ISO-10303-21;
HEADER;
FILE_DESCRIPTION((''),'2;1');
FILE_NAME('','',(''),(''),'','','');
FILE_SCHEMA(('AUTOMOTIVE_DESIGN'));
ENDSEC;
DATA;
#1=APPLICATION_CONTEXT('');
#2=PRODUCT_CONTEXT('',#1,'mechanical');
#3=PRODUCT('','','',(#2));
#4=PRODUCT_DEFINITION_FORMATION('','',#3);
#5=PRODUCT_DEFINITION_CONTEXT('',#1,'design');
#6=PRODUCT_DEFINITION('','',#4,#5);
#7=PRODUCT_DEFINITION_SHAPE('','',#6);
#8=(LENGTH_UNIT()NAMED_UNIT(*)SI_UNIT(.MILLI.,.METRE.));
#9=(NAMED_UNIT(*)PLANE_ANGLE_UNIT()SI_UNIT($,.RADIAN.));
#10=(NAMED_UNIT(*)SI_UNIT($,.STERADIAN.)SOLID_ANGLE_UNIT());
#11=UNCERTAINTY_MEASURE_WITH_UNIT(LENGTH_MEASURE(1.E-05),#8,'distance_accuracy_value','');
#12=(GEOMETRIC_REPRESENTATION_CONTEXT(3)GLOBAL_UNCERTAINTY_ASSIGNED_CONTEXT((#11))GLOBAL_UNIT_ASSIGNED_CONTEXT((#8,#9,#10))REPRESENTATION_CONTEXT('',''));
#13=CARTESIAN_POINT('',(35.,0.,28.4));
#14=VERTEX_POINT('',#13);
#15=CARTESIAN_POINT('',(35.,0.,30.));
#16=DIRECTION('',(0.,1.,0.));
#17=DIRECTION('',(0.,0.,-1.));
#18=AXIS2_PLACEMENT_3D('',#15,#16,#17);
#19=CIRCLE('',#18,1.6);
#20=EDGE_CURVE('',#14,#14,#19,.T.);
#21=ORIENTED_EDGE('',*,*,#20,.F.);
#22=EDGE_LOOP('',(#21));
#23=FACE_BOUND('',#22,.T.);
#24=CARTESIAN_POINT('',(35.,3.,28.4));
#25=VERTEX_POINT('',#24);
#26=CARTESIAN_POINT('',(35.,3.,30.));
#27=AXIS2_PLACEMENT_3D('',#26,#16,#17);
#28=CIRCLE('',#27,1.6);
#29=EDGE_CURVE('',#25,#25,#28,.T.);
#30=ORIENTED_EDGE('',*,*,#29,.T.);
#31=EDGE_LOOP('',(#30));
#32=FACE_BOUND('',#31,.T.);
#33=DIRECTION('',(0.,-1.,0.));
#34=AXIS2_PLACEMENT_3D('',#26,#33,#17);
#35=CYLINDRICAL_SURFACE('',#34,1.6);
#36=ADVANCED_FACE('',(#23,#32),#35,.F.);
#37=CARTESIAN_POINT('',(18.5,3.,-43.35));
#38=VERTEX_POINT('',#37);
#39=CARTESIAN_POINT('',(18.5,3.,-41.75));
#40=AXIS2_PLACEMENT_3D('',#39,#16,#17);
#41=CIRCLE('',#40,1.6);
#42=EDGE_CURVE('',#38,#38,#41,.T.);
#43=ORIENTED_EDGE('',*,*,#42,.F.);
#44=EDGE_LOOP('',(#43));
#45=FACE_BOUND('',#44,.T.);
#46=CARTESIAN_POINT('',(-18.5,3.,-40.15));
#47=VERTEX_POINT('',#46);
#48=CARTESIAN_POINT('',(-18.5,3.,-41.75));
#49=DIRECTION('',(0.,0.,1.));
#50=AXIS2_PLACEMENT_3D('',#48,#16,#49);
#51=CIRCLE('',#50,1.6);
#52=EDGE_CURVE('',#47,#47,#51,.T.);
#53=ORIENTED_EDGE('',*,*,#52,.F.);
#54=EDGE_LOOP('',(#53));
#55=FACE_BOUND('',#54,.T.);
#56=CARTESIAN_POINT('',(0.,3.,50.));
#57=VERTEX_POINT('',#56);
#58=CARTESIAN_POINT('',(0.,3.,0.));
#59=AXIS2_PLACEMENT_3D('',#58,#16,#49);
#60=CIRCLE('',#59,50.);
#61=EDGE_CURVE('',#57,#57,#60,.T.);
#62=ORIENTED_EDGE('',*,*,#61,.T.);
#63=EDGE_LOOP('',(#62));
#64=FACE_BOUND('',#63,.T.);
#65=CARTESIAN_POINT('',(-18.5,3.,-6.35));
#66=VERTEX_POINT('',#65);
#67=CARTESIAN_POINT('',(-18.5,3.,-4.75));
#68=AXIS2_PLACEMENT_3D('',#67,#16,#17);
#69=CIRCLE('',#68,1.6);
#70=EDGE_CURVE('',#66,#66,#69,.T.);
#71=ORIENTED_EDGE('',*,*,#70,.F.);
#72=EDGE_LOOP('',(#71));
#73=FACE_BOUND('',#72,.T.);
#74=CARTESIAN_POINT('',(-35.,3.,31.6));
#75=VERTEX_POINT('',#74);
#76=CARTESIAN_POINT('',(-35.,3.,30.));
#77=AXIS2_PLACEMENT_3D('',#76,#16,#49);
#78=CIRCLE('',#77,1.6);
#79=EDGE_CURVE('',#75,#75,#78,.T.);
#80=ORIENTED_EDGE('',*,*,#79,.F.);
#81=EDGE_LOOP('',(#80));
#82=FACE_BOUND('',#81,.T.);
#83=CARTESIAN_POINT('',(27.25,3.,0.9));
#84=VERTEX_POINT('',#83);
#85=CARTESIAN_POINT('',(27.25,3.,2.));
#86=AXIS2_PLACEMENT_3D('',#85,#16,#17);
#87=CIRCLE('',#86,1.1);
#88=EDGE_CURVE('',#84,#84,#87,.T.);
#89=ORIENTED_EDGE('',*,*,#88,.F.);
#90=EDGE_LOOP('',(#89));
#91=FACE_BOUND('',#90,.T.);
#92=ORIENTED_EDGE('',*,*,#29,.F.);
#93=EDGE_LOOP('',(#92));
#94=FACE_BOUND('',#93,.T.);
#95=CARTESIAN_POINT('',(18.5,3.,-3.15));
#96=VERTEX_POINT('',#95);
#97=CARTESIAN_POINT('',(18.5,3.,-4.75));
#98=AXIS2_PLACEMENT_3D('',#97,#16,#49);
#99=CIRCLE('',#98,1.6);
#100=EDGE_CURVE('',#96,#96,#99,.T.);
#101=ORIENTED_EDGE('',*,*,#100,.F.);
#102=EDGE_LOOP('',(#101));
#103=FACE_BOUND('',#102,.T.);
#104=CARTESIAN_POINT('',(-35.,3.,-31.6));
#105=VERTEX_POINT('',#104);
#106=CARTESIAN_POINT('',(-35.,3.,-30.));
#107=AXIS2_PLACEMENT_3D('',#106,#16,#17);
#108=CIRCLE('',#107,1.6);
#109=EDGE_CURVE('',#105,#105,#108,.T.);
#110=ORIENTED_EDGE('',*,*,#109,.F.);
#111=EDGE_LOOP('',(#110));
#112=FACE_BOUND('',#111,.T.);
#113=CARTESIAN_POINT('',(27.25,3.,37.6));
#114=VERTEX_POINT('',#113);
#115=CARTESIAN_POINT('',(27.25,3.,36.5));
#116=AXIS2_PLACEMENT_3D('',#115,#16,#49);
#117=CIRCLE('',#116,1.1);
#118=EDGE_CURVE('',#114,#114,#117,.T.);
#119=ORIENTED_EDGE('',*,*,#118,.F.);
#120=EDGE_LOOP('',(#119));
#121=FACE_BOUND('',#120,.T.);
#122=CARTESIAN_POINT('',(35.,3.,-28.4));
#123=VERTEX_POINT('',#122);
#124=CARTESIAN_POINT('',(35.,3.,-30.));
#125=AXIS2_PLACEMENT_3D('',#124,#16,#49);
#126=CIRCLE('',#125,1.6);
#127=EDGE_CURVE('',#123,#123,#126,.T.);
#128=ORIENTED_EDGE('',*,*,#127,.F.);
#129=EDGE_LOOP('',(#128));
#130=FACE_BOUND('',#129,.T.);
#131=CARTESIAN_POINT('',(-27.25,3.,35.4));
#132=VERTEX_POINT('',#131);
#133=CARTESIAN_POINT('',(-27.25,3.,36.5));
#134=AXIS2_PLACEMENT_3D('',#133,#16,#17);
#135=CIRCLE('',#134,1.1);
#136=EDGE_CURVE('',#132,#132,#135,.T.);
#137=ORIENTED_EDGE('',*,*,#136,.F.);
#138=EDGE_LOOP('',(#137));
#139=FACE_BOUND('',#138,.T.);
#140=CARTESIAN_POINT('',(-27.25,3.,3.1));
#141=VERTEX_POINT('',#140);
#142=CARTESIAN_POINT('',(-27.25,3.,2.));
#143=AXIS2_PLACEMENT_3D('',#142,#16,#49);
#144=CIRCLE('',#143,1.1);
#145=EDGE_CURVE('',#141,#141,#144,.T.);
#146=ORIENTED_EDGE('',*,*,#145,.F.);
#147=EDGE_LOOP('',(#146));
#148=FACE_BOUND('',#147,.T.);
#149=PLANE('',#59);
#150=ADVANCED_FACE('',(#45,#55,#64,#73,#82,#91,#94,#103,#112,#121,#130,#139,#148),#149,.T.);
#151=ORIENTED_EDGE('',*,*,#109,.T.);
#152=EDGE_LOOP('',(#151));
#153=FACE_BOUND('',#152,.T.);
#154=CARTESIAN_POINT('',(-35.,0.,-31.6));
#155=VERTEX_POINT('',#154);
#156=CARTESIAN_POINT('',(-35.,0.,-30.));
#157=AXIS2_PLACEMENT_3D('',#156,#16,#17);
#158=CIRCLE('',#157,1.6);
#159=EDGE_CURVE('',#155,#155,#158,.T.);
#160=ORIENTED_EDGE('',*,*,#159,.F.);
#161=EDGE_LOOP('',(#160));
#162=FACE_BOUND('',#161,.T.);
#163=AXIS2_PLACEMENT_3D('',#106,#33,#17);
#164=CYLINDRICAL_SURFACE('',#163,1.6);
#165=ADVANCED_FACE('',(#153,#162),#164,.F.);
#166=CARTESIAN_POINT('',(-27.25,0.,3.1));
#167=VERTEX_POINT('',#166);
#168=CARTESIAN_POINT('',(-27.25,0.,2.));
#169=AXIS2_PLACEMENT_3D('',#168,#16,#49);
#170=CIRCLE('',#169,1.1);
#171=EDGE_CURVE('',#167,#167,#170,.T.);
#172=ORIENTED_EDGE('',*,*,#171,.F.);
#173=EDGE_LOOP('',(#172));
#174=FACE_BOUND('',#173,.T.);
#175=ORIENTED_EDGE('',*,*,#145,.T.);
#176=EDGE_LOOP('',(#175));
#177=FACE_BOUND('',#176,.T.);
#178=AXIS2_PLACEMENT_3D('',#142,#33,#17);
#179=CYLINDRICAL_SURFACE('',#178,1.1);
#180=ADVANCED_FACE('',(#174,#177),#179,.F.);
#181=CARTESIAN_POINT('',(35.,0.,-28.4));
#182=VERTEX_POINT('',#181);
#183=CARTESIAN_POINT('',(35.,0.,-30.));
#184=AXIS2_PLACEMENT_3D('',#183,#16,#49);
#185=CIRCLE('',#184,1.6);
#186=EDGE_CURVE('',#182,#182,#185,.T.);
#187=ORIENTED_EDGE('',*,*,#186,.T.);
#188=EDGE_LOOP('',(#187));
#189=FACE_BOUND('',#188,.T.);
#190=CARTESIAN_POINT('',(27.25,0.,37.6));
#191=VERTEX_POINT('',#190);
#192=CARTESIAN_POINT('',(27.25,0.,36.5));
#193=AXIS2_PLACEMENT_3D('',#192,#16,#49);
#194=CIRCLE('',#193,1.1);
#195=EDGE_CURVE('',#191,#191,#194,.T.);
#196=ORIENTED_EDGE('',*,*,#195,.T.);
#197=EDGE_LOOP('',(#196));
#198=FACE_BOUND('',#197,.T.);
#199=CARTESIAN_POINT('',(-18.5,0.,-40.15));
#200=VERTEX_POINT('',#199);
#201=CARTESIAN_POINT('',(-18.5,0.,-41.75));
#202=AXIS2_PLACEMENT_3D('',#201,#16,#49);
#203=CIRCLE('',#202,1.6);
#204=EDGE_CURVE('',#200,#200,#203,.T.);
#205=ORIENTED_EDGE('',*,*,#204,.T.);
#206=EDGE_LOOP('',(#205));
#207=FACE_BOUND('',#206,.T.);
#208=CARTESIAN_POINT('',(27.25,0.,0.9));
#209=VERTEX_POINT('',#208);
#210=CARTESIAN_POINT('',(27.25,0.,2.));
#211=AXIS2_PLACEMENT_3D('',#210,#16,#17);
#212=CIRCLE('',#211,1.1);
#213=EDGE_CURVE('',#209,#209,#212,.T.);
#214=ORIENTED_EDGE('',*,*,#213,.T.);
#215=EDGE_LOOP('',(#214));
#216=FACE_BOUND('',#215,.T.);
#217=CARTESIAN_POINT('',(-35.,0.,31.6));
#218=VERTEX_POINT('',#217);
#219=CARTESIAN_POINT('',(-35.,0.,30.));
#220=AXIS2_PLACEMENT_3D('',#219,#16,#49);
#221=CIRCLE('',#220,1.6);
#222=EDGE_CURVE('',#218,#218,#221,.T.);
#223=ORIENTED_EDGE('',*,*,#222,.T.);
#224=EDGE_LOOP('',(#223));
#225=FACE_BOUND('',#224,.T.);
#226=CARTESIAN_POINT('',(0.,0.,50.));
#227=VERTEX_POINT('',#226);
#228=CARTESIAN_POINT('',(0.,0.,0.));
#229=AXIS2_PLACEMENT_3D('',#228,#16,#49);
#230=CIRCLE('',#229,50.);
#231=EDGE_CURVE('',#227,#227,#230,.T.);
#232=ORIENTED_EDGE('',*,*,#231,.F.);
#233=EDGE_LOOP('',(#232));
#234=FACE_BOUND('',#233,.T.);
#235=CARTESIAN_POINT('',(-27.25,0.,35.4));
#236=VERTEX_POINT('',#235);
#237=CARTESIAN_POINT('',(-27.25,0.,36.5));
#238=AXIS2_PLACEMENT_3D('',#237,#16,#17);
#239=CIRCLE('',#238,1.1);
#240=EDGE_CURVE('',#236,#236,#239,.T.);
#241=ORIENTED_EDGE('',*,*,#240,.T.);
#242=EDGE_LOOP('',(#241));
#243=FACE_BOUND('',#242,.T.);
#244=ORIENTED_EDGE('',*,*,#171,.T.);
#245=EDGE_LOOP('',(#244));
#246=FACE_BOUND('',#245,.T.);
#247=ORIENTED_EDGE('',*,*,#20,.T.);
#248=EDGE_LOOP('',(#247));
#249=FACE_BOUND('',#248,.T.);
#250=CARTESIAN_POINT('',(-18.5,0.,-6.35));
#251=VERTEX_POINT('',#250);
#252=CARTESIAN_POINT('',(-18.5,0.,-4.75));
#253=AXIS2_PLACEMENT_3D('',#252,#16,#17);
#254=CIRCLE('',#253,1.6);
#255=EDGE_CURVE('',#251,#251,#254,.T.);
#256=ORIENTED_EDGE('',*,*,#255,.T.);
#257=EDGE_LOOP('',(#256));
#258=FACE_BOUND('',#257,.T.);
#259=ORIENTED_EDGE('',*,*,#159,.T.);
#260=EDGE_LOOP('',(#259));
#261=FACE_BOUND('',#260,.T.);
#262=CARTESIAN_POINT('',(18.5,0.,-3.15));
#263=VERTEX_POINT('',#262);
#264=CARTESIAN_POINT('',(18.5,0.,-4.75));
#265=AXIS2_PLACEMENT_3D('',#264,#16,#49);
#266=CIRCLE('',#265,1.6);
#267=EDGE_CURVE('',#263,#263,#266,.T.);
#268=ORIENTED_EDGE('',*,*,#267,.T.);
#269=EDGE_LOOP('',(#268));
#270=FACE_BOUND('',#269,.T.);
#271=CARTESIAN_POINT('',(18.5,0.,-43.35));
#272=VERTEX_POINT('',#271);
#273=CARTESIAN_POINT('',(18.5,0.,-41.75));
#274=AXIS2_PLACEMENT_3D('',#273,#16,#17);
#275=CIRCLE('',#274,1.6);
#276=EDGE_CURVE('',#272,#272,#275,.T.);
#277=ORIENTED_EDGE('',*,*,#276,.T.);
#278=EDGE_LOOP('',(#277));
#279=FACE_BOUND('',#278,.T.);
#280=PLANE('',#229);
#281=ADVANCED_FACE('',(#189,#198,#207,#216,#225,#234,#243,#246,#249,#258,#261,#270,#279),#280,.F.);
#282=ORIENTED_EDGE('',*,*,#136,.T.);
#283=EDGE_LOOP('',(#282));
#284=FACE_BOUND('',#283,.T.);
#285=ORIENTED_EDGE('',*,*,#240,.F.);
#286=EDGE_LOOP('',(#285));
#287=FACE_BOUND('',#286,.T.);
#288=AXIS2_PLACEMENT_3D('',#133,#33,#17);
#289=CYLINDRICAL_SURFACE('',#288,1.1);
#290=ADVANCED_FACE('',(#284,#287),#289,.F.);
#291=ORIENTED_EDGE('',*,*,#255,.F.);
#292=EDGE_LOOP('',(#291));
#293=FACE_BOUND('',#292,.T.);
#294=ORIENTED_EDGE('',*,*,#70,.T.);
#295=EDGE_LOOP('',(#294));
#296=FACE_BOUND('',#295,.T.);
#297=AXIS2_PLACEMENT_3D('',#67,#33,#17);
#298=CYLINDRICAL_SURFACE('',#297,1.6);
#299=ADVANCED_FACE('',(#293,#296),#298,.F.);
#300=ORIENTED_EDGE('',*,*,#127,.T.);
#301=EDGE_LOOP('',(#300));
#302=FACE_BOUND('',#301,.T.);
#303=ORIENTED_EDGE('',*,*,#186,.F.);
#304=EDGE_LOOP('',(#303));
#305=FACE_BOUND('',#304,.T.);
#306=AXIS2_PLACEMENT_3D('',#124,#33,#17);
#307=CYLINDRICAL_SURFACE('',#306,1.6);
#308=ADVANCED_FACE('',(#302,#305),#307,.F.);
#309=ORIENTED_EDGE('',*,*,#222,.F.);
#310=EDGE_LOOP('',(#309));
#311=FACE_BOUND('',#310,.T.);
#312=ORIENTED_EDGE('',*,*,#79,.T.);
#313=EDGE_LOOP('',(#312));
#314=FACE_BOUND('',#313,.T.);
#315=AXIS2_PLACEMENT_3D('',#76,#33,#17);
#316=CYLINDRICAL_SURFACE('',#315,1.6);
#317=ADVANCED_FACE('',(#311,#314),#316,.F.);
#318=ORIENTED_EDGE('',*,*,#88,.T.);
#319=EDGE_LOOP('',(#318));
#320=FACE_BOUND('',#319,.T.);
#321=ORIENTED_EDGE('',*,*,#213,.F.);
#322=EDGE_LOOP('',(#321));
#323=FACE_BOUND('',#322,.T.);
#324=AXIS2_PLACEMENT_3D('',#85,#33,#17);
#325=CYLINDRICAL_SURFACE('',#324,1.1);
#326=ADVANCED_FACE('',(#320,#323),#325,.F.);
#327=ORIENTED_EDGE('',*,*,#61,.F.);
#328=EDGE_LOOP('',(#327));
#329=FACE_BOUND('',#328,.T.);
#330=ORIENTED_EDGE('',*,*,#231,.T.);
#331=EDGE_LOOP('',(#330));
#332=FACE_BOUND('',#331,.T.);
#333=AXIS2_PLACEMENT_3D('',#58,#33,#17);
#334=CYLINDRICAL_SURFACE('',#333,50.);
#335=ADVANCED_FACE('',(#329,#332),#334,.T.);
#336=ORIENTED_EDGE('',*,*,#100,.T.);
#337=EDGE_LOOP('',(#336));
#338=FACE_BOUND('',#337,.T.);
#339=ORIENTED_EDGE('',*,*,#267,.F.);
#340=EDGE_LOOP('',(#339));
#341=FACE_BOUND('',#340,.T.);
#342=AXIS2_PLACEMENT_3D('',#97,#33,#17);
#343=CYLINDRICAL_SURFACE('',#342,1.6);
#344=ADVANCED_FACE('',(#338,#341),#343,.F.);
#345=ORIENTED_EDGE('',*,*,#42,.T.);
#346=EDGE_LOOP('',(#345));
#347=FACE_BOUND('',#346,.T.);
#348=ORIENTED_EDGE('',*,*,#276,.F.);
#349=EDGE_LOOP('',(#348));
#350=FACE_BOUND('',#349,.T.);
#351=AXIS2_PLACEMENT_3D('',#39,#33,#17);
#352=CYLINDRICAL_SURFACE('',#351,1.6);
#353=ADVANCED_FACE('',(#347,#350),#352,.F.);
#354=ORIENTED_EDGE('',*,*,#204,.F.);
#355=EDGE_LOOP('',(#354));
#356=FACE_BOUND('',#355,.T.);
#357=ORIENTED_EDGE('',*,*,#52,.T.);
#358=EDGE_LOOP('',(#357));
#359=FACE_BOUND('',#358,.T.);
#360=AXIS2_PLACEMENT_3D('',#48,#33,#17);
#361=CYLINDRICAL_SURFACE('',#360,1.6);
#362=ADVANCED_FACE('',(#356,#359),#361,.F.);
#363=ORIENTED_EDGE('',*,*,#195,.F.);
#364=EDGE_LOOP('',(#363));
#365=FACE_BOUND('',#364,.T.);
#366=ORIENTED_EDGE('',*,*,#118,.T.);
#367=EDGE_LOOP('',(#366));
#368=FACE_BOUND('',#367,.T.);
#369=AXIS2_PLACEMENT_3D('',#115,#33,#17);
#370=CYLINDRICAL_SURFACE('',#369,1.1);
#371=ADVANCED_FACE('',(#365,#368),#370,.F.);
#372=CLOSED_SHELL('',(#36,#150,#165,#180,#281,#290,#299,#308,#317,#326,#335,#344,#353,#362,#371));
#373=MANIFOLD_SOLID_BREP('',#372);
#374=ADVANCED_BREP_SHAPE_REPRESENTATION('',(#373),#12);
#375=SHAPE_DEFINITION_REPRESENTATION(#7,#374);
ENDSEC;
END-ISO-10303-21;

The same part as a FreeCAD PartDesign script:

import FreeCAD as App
import Part
import Sketcher
Q = App.Units.Quantity

doc = App.newDocument("Part")
params = doc.addObject("Spreadsheet::Sheet", "Params")
for row, (alias, value) in enumerate([
    ("sketch1_diameter", "100 mm"),
    ("sketch1_diameter2", "3.2 mm"),
    ("sketch1_diameter3", "2.2 mm"),
    ("pad1_length", "3 mm"),
], start=1):
    params.set(f"A{row}", alias)
    params.set(f"B{row}", "=" + value)
    params.setAlias(f"B{row}", alias)

body = doc.addObject("PartDesign::Body", "Body")

# Sketch on XZ plane
sketch1 = body.newObject("Sketcher::SketchObject", "Sketch")
sketch1.AttachmentSupport = (doc.getObject("XZ_Plane"), [""])
sketch1.MapMode = "FlatFace"
sketch1.addGeometry(Part.Circle(App.Vector(0, 0, 0), App.Vector(0, 0, 1), 50), False)
sketch1.addGeometry(Part.Circle(App.Vector(-35, 30, 0), App.Vector(0, 0, 1), 1.6), False)
sketch1.addGeometry(Part.Circle(App.Vector(-27.25, 36.5, 0), App.Vector(0, 0, 1), 1.1), False)
sketch1.addGeometry(Part.Circle(App.Vector(-27.25, 2, 0), App.Vector(0, 0, 1), 1.1), False)
sketch1.addGeometry(Part.Circle(App.Vector(27.25, 36.5, 0), App.Vector(0, 0, 1), 1.1), False)
sketch1.addGeometry(Part.Circle(App.Vector(35, 30, 0), App.Vector(0, 0, 1), 1.6), False)
sketch1.addGeometry(Part.Circle(App.Vector(27.25, 2, 0), App.Vector(0, 0, 1), 1.1), False)
sketch1.addGeometry(Part.Circle(App.Vector(-18.5, -4.75, 0), App.Vector(0, 0, 1), 1.6), False)
sketch1.addGeometry(Part.Circle(App.Vector(-35, -30, 0), App.Vector(0, 0, 1), 1.6), False)
sketch1.addGeometry(Part.Circle(App.Vector(-18.5, -41.75, 0), App.Vector(0, 0, 1), 1.6), False)
sketch1.addGeometry(Part.Circle(App.Vector(18.5, -4.75, 0), App.Vector(0, 0, 1), 1.6), False)
sketch1.addGeometry(Part.Circle(App.Vector(35, -30, 0), App.Vector(0, 0, 1), 1.6), False)
sketch1.addGeometry(Part.Circle(App.Vector(18.5, -41.75, 0), App.Vector(0, 0, 1), 1.6), False)
sketch1.addConstraint(Sketcher.Constraint("Coincident", 0, 3, -1, 1))
sketch1.addConstraint(Sketcher.Constraint("Equal", 2, 3))
sketch1.addConstraint(Sketcher.Constraint("Equal", 3, 4))
sketch1.addConstraint(Sketcher.Constraint("Equal", 1, 5))
sketch1.addConstraint(Sketcher.Constraint("Equal", 4, 6))
sketch1.addConstraint(Sketcher.Constraint("Equal", 5, 7))
sketch1.addConstraint(Sketcher.Constraint("Equal", 7, 8))
sketch1.addConstraint(Sketcher.Constraint("Equal", 8, 9))
sketch1.addConstraint(Sketcher.Constraint("Equal", 9, 10))
sketch1.addConstraint(Sketcher.Constraint("Equal", 10, 11))
sketch1.addConstraint(Sketcher.Constraint("Equal", 11, 12))
sketch1.addConstraint(Sketcher.Constraint("Symmetric", 5, 3, 8, 3, -1, 1))
sketch1.addConstraint(Sketcher.Constraint("Symmetric", 1, 3, 11, 3, -1, 1))
sketch1.addConstraint(Sketcher.Constraint("Symmetric", 2, 3, 4, 3, -2))
sketch1.addConstraint(Sketcher.Constraint("Symmetric", 1, 3, 5, 3, -2))
sketch1.addConstraint(Sketcher.Constraint("Symmetric", 3, 3, 6, 3, -2))
sketch1.addConstraint(Sketcher.Constraint("Symmetric", 7, 3, 10, 3, -2))
sketch1.addConstraint(Sketcher.Constraint("Symmetric", 9, 3, 12, 3, -2))
sketch1.addConstraint(Sketcher.Constraint("Vertical", 2, 3, 3, 3))
sketch1.addConstraint(Sketcher.Constraint("Vertical", 7, 3, 9, 3))
sketch1.addConstraint(Sketcher.Constraint("Diameter", 0, Q("100 mm")))
sketch1.addConstraint(Sketcher.Constraint("Diameter", 1, Q("3.2 mm")))
sketch1.addConstraint(Sketcher.Constraint("Diameter", 2, Q("2.2 mm")))
sketch1.addConstraint(Sketcher.Constraint("DistanceX", 1, 3, -1, 1, Q("35 mm")))
sketch1.addConstraint(Sketcher.Constraint("DistanceY", -1, 1, 1, 3, Q("30 mm")))
sketch1.addConstraint(Sketcher.Constraint("DistanceY", -1, 1, 3, 3, Q("2 mm")))
sketch1.addConstraint(Sketcher.Constraint("DistanceY", 9, 3, 7, 3, Q("37 mm")))
sketch1.addConstraint(Sketcher.Constraint("DistanceX", 7, 3, 10, 3, Q("37 mm")))
sketch1.addConstraint(Sketcher.Constraint("DistanceY", -1, 1, 2, 3, Q("36.5 mm")))
sketch1.addConstraint(Sketcher.Constraint("DistanceX", 2, 3, 4, 3, Q("54.5 mm")))
sketch1.addConstraint(Sketcher.Constraint("DistanceY", 7, 3, -1, 1, Q("4.75 mm")))
sketch1.setExpression("Constraints[20]", "Params.sketch1_diameter")
sketch1.setExpression("Constraints[21]", "Params.sketch1_diameter2")
sketch1.setExpression("Constraints[22]", "Params.sketch1_diameter3")
pad1 = body.newObject("PartDesign::Pad", "Pad")
pad1.Profile = sketch1
pad1.setExpression("Length", "Params.pad1_length")
pad1.Reversed = True

doc.recompute()
